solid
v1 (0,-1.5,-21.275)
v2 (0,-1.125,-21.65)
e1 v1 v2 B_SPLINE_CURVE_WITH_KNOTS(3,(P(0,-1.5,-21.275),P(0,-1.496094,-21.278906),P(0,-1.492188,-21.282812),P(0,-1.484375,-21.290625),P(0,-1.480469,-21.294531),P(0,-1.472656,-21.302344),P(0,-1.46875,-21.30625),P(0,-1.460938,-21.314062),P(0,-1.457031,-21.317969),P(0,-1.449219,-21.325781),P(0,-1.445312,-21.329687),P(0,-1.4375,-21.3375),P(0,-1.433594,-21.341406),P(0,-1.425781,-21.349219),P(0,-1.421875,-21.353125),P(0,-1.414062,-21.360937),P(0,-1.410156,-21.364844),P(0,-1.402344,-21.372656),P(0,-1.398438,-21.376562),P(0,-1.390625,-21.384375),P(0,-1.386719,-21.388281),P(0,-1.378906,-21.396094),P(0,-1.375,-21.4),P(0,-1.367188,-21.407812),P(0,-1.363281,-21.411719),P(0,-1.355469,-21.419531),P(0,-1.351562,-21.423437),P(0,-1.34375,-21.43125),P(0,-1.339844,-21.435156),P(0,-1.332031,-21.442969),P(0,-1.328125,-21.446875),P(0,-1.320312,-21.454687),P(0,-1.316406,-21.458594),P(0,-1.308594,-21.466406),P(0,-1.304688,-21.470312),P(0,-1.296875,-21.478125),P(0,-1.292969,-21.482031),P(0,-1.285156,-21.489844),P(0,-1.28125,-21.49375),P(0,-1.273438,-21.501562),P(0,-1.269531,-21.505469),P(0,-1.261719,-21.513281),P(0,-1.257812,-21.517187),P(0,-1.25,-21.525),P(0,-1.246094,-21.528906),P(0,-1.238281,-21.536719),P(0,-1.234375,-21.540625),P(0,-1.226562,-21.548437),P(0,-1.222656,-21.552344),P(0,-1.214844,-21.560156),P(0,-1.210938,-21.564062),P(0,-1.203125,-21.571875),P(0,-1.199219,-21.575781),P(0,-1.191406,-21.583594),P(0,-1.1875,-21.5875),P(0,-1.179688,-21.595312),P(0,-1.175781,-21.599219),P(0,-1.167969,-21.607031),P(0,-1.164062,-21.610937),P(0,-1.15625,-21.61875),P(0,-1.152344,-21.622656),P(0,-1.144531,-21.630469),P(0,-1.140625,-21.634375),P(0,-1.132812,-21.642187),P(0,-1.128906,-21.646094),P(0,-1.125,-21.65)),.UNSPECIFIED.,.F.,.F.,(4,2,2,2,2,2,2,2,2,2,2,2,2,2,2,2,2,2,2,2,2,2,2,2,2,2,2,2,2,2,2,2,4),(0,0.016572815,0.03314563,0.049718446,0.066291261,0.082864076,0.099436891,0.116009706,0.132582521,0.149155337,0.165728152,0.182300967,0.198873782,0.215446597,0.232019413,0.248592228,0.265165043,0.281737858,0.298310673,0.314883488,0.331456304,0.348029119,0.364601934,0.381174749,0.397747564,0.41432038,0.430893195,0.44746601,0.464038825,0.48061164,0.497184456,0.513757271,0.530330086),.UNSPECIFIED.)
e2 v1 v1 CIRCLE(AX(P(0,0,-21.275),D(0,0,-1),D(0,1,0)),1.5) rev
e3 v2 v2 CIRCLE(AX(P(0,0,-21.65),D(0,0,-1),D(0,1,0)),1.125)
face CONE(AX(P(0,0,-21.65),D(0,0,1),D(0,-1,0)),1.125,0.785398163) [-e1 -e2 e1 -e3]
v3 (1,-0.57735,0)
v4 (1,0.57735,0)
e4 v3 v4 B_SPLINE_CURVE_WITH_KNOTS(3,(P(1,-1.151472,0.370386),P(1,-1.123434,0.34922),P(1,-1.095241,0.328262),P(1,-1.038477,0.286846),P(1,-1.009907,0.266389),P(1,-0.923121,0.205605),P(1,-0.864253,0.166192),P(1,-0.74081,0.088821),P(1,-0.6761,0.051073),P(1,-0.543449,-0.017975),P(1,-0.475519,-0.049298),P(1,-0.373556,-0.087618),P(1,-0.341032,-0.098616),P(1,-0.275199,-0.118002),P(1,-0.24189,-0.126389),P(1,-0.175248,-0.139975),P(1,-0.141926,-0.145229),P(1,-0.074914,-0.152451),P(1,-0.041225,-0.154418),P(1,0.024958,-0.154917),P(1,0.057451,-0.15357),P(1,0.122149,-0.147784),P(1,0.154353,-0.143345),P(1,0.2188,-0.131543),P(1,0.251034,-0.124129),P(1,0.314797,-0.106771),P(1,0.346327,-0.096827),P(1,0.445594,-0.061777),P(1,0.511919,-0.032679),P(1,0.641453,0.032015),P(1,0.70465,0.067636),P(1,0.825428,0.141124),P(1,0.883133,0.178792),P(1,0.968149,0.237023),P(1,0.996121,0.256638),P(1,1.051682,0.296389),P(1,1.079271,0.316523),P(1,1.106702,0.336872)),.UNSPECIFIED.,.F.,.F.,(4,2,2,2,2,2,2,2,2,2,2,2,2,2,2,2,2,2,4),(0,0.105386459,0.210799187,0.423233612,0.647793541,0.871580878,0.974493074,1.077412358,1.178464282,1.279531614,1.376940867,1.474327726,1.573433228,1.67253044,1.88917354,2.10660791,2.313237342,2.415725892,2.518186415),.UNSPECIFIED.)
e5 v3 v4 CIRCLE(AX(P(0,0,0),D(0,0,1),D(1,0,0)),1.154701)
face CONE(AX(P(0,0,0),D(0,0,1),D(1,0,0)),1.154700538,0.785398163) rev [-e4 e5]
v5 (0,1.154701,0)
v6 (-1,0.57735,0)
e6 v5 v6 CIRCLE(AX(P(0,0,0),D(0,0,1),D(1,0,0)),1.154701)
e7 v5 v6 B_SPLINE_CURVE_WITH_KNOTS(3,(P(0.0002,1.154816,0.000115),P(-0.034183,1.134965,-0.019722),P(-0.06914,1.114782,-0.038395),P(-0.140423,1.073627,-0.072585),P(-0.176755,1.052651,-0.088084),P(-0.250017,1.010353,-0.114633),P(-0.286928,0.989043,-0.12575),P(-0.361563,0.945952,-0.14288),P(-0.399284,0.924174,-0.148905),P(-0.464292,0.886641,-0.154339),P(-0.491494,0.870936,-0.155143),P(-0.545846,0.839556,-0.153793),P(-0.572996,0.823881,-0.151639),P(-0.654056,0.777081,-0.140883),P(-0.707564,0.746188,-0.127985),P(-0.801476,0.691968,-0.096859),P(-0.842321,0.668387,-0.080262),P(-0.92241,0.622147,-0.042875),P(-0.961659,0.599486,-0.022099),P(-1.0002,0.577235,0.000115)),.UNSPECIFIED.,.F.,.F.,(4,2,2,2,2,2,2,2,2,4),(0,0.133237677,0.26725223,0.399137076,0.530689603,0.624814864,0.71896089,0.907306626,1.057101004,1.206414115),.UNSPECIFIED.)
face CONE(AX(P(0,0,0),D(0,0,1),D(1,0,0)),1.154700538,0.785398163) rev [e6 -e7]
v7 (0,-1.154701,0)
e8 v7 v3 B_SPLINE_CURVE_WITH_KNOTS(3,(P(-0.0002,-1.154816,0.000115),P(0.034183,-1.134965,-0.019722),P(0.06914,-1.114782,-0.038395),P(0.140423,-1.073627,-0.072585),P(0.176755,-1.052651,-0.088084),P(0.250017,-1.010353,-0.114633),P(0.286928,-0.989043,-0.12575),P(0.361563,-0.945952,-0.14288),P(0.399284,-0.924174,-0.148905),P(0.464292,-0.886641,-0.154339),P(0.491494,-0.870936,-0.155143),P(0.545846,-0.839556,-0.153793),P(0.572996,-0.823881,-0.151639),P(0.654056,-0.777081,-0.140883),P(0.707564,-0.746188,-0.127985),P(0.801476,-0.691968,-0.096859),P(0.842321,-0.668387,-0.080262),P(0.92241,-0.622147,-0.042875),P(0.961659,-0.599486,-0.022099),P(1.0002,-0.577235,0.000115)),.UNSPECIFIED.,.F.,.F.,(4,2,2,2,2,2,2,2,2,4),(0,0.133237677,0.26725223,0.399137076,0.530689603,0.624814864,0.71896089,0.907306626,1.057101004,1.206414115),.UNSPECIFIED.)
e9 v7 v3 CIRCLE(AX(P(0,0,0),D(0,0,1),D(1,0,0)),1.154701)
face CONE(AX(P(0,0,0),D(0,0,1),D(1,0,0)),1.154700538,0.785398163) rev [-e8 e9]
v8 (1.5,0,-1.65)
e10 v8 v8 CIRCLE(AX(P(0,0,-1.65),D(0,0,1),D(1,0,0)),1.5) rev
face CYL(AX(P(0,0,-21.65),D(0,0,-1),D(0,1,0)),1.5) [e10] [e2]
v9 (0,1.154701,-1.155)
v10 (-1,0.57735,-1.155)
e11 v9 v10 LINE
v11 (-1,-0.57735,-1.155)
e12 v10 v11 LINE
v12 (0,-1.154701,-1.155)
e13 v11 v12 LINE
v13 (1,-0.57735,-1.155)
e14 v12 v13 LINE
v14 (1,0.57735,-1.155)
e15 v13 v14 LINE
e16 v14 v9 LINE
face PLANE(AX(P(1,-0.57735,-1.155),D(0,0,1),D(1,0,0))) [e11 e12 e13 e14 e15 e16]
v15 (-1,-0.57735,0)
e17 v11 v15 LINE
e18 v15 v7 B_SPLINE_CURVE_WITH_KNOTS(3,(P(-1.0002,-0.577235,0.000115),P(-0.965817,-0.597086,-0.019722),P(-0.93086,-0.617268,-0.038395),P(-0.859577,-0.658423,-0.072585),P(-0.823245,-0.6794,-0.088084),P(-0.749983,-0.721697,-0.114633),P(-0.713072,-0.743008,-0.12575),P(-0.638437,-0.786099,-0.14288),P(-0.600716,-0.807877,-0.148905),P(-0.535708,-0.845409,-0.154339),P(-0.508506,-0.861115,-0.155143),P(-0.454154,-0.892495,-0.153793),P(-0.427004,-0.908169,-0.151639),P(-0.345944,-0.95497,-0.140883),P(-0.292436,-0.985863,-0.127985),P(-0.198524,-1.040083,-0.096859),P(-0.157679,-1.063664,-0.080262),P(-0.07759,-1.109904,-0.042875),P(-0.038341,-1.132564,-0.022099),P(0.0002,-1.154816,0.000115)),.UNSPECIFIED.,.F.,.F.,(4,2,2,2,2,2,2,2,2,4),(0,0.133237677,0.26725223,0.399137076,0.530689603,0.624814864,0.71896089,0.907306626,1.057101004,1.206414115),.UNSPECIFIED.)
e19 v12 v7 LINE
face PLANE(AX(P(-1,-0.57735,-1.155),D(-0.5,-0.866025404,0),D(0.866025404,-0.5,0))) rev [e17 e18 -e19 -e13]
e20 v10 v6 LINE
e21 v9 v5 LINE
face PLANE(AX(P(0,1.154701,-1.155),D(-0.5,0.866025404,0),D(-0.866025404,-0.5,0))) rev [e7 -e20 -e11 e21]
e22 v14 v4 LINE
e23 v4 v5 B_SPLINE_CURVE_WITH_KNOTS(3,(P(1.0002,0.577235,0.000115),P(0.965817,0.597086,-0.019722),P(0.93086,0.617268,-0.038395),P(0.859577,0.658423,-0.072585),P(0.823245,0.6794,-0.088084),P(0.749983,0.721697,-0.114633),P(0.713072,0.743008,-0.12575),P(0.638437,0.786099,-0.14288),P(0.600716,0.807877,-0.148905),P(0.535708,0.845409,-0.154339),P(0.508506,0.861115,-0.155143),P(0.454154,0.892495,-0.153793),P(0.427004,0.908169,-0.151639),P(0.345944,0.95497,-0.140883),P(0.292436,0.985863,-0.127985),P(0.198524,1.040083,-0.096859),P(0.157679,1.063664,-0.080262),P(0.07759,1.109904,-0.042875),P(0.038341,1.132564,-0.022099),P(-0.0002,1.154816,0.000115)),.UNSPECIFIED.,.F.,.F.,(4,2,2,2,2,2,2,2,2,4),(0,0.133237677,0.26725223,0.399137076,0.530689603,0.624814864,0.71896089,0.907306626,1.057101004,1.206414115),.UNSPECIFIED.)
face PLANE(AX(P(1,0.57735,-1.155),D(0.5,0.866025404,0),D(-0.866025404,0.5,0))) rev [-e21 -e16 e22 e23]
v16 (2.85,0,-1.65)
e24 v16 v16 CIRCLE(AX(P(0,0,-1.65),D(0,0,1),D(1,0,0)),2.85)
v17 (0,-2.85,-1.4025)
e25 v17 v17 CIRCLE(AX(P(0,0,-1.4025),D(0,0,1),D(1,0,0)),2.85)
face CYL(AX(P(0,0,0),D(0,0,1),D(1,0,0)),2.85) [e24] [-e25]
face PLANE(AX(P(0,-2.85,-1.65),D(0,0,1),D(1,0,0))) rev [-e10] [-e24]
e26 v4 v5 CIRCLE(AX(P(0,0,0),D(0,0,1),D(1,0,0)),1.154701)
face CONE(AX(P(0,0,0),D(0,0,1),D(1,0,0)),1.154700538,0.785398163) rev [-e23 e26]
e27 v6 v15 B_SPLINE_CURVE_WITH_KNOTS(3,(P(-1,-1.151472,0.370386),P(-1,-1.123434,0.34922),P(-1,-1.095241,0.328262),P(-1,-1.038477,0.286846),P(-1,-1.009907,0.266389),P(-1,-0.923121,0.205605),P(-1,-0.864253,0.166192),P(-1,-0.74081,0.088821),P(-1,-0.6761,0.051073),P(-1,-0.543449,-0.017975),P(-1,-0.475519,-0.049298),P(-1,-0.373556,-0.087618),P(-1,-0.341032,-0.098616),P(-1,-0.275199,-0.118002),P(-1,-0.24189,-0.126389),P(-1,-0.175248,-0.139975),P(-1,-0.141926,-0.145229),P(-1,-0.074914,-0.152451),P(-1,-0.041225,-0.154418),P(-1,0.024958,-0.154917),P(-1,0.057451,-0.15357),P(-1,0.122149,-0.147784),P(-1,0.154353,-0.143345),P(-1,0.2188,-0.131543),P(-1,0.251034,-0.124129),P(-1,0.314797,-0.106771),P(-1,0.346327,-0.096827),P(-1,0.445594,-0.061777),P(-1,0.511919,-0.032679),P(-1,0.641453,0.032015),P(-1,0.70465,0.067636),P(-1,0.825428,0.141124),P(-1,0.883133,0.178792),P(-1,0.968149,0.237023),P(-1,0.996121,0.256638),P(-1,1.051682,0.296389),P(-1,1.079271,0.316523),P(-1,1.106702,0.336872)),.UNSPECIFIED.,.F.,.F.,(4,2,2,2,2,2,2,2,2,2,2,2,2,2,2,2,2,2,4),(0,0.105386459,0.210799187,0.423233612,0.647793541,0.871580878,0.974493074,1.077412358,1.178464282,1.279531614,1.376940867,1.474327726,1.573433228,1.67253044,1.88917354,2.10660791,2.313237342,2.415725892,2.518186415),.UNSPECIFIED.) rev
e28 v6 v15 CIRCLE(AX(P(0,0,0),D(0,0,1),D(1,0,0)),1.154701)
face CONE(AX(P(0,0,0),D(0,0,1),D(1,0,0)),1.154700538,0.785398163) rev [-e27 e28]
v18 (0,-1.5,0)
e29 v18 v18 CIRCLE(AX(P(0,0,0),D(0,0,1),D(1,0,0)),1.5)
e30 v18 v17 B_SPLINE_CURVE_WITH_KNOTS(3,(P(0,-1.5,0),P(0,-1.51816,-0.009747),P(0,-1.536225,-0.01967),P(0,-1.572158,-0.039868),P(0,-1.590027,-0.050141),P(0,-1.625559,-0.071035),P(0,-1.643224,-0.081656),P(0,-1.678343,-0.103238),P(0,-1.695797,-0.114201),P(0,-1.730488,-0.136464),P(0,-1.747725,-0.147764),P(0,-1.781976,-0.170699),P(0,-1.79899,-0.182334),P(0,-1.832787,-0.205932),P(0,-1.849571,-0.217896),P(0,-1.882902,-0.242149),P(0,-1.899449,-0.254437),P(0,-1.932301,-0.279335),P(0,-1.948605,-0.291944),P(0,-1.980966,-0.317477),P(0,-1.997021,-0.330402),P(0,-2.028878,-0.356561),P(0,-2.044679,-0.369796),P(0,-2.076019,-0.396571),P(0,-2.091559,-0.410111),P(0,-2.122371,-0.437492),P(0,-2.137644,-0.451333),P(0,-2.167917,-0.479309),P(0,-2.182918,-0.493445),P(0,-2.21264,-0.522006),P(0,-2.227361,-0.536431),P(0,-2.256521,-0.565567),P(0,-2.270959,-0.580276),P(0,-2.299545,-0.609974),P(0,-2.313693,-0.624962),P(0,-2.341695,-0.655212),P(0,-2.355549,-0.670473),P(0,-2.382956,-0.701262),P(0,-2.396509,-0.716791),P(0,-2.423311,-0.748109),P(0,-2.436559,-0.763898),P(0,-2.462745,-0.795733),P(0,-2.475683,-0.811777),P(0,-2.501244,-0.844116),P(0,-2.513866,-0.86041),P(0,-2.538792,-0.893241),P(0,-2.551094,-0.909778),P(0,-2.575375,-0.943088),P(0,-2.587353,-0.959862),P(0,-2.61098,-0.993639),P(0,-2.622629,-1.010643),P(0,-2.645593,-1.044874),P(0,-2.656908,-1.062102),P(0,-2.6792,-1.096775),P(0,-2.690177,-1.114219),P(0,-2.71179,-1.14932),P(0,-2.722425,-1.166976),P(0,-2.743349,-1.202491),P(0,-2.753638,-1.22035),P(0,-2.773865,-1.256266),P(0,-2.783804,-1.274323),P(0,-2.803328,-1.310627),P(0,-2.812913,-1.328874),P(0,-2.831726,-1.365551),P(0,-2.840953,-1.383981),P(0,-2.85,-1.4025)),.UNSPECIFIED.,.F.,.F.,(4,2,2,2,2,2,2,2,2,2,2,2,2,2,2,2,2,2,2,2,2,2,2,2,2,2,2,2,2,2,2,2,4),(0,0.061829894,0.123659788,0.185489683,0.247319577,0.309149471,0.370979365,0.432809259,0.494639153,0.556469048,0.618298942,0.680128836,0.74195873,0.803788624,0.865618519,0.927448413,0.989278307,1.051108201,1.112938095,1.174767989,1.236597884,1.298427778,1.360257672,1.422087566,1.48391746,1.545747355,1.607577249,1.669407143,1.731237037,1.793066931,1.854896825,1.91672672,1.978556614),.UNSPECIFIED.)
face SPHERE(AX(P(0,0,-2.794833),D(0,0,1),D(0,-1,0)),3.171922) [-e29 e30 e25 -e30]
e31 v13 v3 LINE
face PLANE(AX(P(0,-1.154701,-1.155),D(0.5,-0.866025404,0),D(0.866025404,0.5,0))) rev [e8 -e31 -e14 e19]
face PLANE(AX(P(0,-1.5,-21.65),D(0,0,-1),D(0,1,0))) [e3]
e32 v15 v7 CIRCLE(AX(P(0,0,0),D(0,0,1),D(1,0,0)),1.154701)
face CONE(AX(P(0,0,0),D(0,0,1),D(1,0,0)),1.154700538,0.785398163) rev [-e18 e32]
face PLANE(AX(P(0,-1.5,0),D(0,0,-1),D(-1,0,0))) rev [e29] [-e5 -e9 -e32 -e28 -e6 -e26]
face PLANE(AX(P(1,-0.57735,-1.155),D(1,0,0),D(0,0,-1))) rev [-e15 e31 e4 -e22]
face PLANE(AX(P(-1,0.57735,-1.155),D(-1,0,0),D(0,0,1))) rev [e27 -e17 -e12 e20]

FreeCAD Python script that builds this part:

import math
import FreeCAD as App
import Part
import Sketcher
Q = App.Units.Quantity


def edges_at(feature, points):
    """Names of the edges that pass closest to the given points."""
    edges = feature.Shape.Edges
    near = lambda p: min(range(len(edges)), key=lambda i: edges[i].distToShape(Part.Vertex(*p))[0])
    return sorted({f"Edge{near(p) + 1}" for p in points})

doc = App.newDocument("Part")
body = doc.addObject("PartDesign::Body", "Body")

# Sketch on YZ plane
sketch1 = body.newObject("Sketcher::SketchObject", "Sketch")
sketch1.AttachmentSupport = (doc.getObject("YZ_Plane"), [""])
sketch1.MapMode = "FlatFace"
sketch1.addGeometry([
    Part.LineSegment(App.Vector(1.5, -1.6, 0), App.Vector(0, -1.6, 0)),
    Part.LineSegment(App.Vector(0, -1.6, 0), App.Vector(0, -21.6, 0)),
    Part.LineSegment(App.Vector(0, -21.6, 0), App.Vector(1.5, -21.6, 0)),
    Part.LineSegment(App.Vector(1.5, -21.6, 0), App.Vector(1.5, -1.6, 0)),
], False)
sketch1.addConstraint([
    Sketcher.Constraint("Coincident", 0, 2, 1, 1),
    Sketcher.Constraint("Coincident", 1, 2, 2, 1),
    Sketcher.Constraint("Coincident", 2, 2, 3, 1),
    Sketcher.Constraint("Coincident", 3, 2, 0, 1),
    Sketcher.Constraint("Horizontal", 0),
    Sketcher.Constraint("Vertical", 1),
    Sketcher.Constraint("Horizontal", 2),
    Sketcher.Constraint("Vertical", 3),
    Sketcher.Constraint("PointOnObject", 0, 2, -2),
    Sketcher.Constraint("DistanceY", 1, 2, 1, 1, 20.0),
    Sketcher.Constraint("DistanceX", 0, 2, 0, 1, 1.5),
    Sketcher.Constraint("DistanceY", 0, 2, -1, 1, 1.65),
])
revolution = body.newObject("PartDesign::Revolution", "Revolution")
revolution.Profile = sketch1
revolution.ReferenceAxis = (sketch1, ["V_Axis"])
revolution.Angle = 360
doc.recompute()

chamfer = body.newObject("PartDesign::Chamfer", "Chamfer")
chamfer.Base = (revolution, edges_at(revolution, [(0, -1.5, -21.65)]))
chamfer.Size = 0.375

# Sketch on YZ plane
sketch2 = body.newObject("Sketcher::SketchObject", "Sketch001")
sketch2.AttachmentSupport = (doc.getObject("YZ_Plane"), [""])
sketch2.MapMode = "FlatFace"
sketch2.addGeometry([
    Part.LineSegment(App.Vector(2.85, -1.65, 0), App.Vector(2.85, -1.4, 0)),  # 0
    Part.ArcOfCircle(Part.Circle(App.Vector(0, -2.79, 0), App.Vector(0, 0, 1), 3.17), math.radians(26), math.radians(62)),  # 1
    Part.LineSegment(App.Vector(1.5, 0, 0), App.Vector(0, 0, 0)),  # 2
    Part.LineSegment(App.Vector(0, 0, 0), App.Vector(0, -1.65, 0)),  # 3
    Part.LineSegment(App.Vector(0, -1.65, 0), App.Vector(2.85, -1.65, 0)),  # 4
], False)
sketch2.addConstraint([
    Sketcher.Constraint("Coincident", 0, 2, 1, 1),
    Sketcher.Constraint("Coincident", 1, 2, 2, 1),
    Sketcher.Constraint("Coincident", 2, 2, 3, 1),
    Sketcher.Constraint("Coincident", 3, 2, 4, 1),
    Sketcher.Constraint("Coincident", 4, 2, 0, 1),
    Sketcher.Constraint("Vertical", 0),
    Sketcher.Constraint("Horizontal", 2),
    Sketcher.Constraint("Vertical", 3),
    Sketcher.Constraint("Horizontal", 4),
    Sketcher.Constraint("Coincident", 2, 2, -1, 1),
    Sketcher.Constraint("PointOnObject", 1, 3, -2),
    Sketcher.Constraint("DistanceX", 2, 2, 2, 1, 1.5),
    Sketcher.Constraint("DistanceX", 4, 1, 4, 2, 2.85),
    Sketcher.Constraint("DistanceY", 3, 2, 3, 1, 1.65),
    Sketcher.Constraint("DistanceY", 0, 1, 0, 2, 0.2475),
])
revolution2 = body.newObject("PartDesign::Revolution", "Revolution001")
revolution2.Profile = sketch2
revolution2.ReferenceAxis = (sketch2, ["V_Axis"])
revolution2.Angle = 360

# Sketch on XY plane
sketch3 = body.newObject("Sketcher::SketchObject", "Sketch002")
sketch3.AttachmentSupport = (doc.getObject("XY_Plane"), [""])
sketch3.MapMode = "FlatFace"
sketch3.addGeometry([
    Part.LineSegment(App.Vector(1, -0.6, 0), App.Vector(1, 0.6, 0)),  # 0
    Part.LineSegment(App.Vector(1, 0.6, 0), App.Vector(0, 1.2, 0)),  # 1
    Part.LineSegment(App.Vector(0, 1.2, 0), App.Vector(-1, 0.6, 0)),  # 2
    Part.LineSegment(App.Vector(-1, 0.6, 0), App.Vector(-1, -0.6, 0)),  # 3
    Part.LineSegment(App.Vector(-1, -0.6, 0), App.Vector(0, -1.2, 0)),  # 4
    Part.LineSegment(App.Vector(0, -1.2, 0), App.Vector(1, -0.6, 0)),  # 5
], False)
sketch3.addConstraint([
    Sketcher.Constraint("Coincident", 0, 2, 1, 1),
    Sketcher.Constraint("Coincident", 1, 2, 2, 1),
    Sketcher.Constraint("Coincident", 2, 2, 3, 1),
    Sketcher.Constraint("Coincident", 3, 2, 4, 1),
    Sketcher.Constraint("Coincident", 4, 2, 5, 1),
    Sketcher.Constraint("Coincident", 5, 2, 0, 1),
    Sketcher.Constraint("Vertical", 0),
    Sketcher.Constraint("Vertical", 3),
    Sketcher.Constraint("Symmetric", 0, 2, 3, 2, -1, 1),
    Sketcher.Constraint("Symmetric", 1, 2, 4, 2, -1, 1),
    Sketcher.Constraint("PointOnObject", 1, 2, -2),
    Sketcher.Constraint("Parallel", 2, 5),
    Sketcher.Constraint("Horizontal", 0, 2, 2, 2),
    Sketcher.Constraint("Angle", 1, Q("150 deg")),
    Sketcher.Constraint("DistanceX", -1, 1, 0, 2, 1.0),
    Sketcher.Constraint("DistanceY", 0, 1, 0, 2, 1.154701),
])
pocket1 = body.newObject("PartDesign::Pocket", "Pocket")
pocket1.Profile = sketch3
pocket1.Length = 1.155

# Sketch on YZ plane
sketch4 = body.newObject("Sketcher::SketchObject", "Sketch003")
sketch4.AttachmentSupport = (doc.getObject("YZ_Plane"), [""])
sketch4.MapMode = "FlatFace"
sketch4.addGeometry([
    Part.LineSegment(App.Vector(0, 0, 0), App.Vector(-1.2, 0, 0)),
    Part.LineSegment(App.Vector(-1.2, 0, 0), App.Vector(0, -1.2, 0)),
    Part.LineSegment(App.Vector(0, -1.2, 0), App.Vector(0, 0, 0)),
], False)
sketch4.addConstraint([
    Sketcher.Constraint("Coincident", 0, 2, 1, 1),
    Sketcher.Constraint("Coincident", 1, 2, 2, 1),
    Sketcher.Constraint("Coincident", 2, 2, 0, 1),
    Sketcher.Constraint("Horizontal", 0),
    Sketcher.Constraint("Vertical", 2),
    Sketcher.Constraint("Coincident", 2, 2, -1, 1),
    Sketcher.Constraint("Equal", 0, 2),
    Sketcher.Constraint("DistanceX", 0, 2, 0, 1, 1.154701),
])
groove = body.newObject("PartDesign::Groove", "Groove")
groove.Profile = sketch4
groove.ReferenceAxis = (sketch4, ["V_Axis"])
groove.Angle = 360

doc.recompute()
